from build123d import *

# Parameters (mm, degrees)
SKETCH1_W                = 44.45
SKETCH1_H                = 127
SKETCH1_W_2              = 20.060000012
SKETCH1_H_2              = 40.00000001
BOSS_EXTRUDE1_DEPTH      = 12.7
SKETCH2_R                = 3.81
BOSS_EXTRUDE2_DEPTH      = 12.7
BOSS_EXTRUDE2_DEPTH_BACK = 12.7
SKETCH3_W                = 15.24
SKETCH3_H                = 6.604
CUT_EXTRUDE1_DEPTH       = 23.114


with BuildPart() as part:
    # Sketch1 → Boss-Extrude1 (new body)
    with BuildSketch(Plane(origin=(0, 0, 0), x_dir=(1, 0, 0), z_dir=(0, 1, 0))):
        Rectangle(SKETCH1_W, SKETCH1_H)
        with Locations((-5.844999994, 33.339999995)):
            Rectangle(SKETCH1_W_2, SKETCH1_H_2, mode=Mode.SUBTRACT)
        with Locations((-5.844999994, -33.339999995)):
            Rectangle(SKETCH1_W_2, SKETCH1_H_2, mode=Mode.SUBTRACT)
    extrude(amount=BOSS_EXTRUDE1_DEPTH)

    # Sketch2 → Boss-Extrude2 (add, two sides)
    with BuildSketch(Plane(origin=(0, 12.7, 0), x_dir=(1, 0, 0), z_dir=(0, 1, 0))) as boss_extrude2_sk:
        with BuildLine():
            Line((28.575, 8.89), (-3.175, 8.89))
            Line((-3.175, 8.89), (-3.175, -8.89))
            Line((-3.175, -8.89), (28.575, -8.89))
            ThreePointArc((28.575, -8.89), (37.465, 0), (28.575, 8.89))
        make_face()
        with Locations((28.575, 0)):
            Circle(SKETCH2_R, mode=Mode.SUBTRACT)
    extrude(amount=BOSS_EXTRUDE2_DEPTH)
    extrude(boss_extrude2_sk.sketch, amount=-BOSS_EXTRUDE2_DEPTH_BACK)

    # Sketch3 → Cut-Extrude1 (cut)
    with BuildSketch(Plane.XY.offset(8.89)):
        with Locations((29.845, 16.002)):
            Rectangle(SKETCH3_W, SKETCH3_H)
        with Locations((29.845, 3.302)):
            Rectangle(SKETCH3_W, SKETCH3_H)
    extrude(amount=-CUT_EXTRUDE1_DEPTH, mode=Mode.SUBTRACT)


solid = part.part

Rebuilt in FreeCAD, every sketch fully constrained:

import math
import FreeCAD as App
import Part
import Sketcher
from FreeCAD import Vector
Q = App.Units.Quantity

doc = App.newDocument("Part")
params = doc.addObject("Spreadsheet::Sheet", "Params")
for row, (alias, value) in enumerate([
    ("sketch1_height", "5 in"),
    ("sketch1_width", "1.75 in"),
    ("pad1_length", "0.5 in"),
    ("sketch2_diameter", "0.3 in"),
    ("sketch2_radius", "0.35 in"),
    ("sketch2_width", "1.25 in"),
    ("pad2_length", "0.5 in"),
    ("pad2_length2", "0.5 in"),
    ("sketch3_width", "0.6 in"),
    ("sketch3_height", "0.26 in"),
    ("pocket1_length", "0.91 in"),
], start=1):
    params.set(f"A{row}", alias)
    params.set(f"B{row}", "=" + value)
    params.setAlias(f"B{row}", alias)

body = doc.addObject("PartDesign::Body", "Body")

# Sketch on XZ plane
sketch1 = doc.addObject("Sketcher::SketchObject", "Sketch")
body.addObject(sketch1)
sketch1.AttachmentSupport = (doc.XZ_Plane, [""])
sketch1.MapMode = "FlatFace"
sketch1.addGeometry([
    Part.LineSegment(Vector(-22.225, -63.5, 0), Vector(-22.225, 63.5, 0)),  # 0
    Part.LineSegment(Vector(-22.225, 63.5, 0), Vector(22.225, 63.5, 0)),  # 1
    Part.LineSegment(Vector(22.225, 63.5, 0), Vector(22.225, -63.5, 0)),  # 2
    Part.LineSegment(Vector(22.225, -63.5, 0), Vector(-22.225, -63.5, 0)),  # 3
    Part.LineSegment(Vector(4.185, 53.34, 0), Vector(-15.875, 53.34, 0)),  # 4
    Part.LineSegment(Vector(-15.875, 53.34, 0), Vector(-15.875, 13.34, 0)),  # 5
    Part.LineSegment(Vector(-15.875, 13.34, 0), Vector(4.185, 13.34, 0)),  # 6
    Part.LineSegment(Vector(4.185, 13.34, 0), Vector(4.185, 53.34, 0)),  # 7
    Part.LineSegment(Vector(4.185, -13.34, 0), Vector(-15.875, -13.34, 0)),  # 8
    Part.LineSegment(Vector(-15.875, -13.34, 0), Vector(-15.875, -53.34, 0)),  # 9
    Part.LineSegment(Vector(-15.875, -53.34, 0), Vector(4.185, -53.34, 0)),  # 10
    Part.LineSegment(Vector(4.185, -53.34, 0), Vector(4.185, -13.34, 0)),  # 11
], False)
sketch1.addConstraint([
    Sketcher.Constraint("Coincident", 0, 2, 1, 1),
    Sketcher.Constraint("Coincident", 1, 2, 2, 1),
    Sketcher.Constraint("Coincident", 2, 2, 3, 1),
    Sketcher.Constraint("Coincident", 3, 2, 0, 1),
    Sketcher.Constraint("Coincident", 4, 2, 5, 1),
    Sketcher.Constraint("Coincident", 5, 2, 6, 1),
    Sketcher.Constraint("Coincident", 6, 2, 7, 1),
    Sketcher.Constraint("Coincident", 7, 2, 4, 1),
    Sketcher.Constraint("Coincident", 8, 2, 9, 1),
    Sketcher.Constraint("Coincident", 9, 2, 10, 1),
    Sketcher.Constraint("Coincident", 10, 2, 11, 1),
    Sketcher.Constraint("Coincident", 11, 2, 8, 1),
    Sketcher.Constraint("Vertical", 0),
    Sketcher.Constraint("Horizontal", 1),
    Sketcher.Constraint("Vertical", 2),
    Sketcher.Constraint("Horizontal", 3),
    Sketcher.Constraint("Horizontal", 4),
    Sketcher.Constraint("Vertical", 5),
    Sketcher.Constraint("Horizontal", 6),
    Sketcher.Constraint("Vertical", 7),
    Sketcher.Constraint("Horizontal", 8),
    Sketcher.Constraint("Vertical", 9),
    Sketcher.Constraint("Horizontal", 10),
    Sketcher.Constraint("Vertical", 11),
    Sketcher.Constraint("Symmetric", 0, 2, 2, 2, -1, 1),
    Sketcher.Constraint("Symmetric", 5, 2, 8, 2, -1),
    Sketcher.Constraint("Symmetric", 7, 2, 10, 2, -1),
    Sketcher.Constraint("DistanceY", 0, 1, 0, 2, Q("5 in")),
    Sketcher.Constraint("DistanceX", 1, 1, 1, 2, Q("1.75 in")),
    Sketcher.Constraint("DistanceY", -1, 1, 4, 2, Q("2.1 in")),
    Sketcher.Constraint("DistanceX", 4, 2, 1, 2, Q("1.5 in")),
    Sketcher.Constraint("DistanceX", 4, 2, 4, 1, 20.06),
    Sketcher.Constraint("DistanceY", 5, 2, 5, 1, 40.0),
])
sketch1.setExpression("Constraints[27]", "Params.sketch1_height")
sketch1.setExpression("Constraints[28]", "Params.sketch1_width")
pad1 = doc.addObject("PartDesign::Pad", "Pad")
body.addObject(pad1)
pad1.Profile = sketch1
pad1.setExpression("Length", "Params.pad1_length")
pad1.Reversed = True

# Sketch on XZ plane
sketch2 = doc.addObject("Sketcher::SketchObject", "Sketch001")
body.addObject(sketch2)
sketch2.AttachmentSupport = (doc.XZ_Plane, [""])
sketch2.MapMode = "FlatFace"
sketch2.AttachmentOffset = App.Placement(Vector(0, 0, -0.5 * 25.4), App.Rotation())
sketch2.addGeometry([
    Part.LineSegment(Vector(28.575, -8.89, 0), Vector(-3.175, -8.89, 0)),  # 0
    Part.LineSegment(Vector(-3.175, -8.89, 0), Vector(-3.175, 8.89, 0)),  # 1
    Part.LineSegment(Vector(-3.175, 8.89, 0), Vector(28.575, 8.89, 0)),  # 2
    Part.ArcOfCircle(Part.Circle(Vector(28.575, 0, 0), Vector(0, 0, 1), 8.89), math.radians(-90), math.radians(90)),  # 3
    Part.Circle(Vector(28.575, 0, 0), Vector(0, 0, 1), 3.81),  # 4
], False)
sketch2.addConstraint([
    Sketcher.Constraint("Coincident", 0, 2, 1, 1),
    Sketcher.Constraint("Coincident", 1, 2, 2, 1),
    Sketcher.Constraint("Tangent", 2, 2, 3, 2),
    Sketcher.Constraint("Tangent", 3, 1, 0, 1),
    Sketcher.Constraint("Horizontal", 0),
    Sketcher.Constraint("Vertical", 1),
    Sketcher.Constraint("Horizontal", 2),
    Sketcher.Constraint("Coincident", 4, 3, 3, 3),
    Sketcher.Constraint("PointOnObject", 3, 3, -1),
    Sketcher.Constraint("Diameter", 4, Q("0.3 in")),
    Sketcher.Constraint("Radius", 3, Q("0.35 in")),
    Sketcher.Constraint("DistanceX", 0, 2, 0, 1, Q("1.25 in")),
    Sketcher.Constraint("DistanceX", -1, 1, 3, 3, Q("1.125 in")),
])
sketch2.setExpression("Constraints[9]", "Params.sketch2_diameter")
sketch2.setExpression("Constraints[10]", "Params.sketch2_radius")
sketch2.setExpression("Constraints[11]", "Params.sketch2_width")
pad2 = doc.addObject("PartDesign::Pad", "Pad001")
body.addObject(pad2)
pad2.Profile = sketch2
pad2.Type = "TwoLengths"
pad2.setExpression("Length", "Params.pad2_length")
pad2.setExpression("Length2", "Params.pad2_length2")
pad2.Reversed = True

# Sketch on XY plane
sketch3 = doc.addObject("Sketcher::SketchObject", "Sketch002")
body.addObject(sketch3)
sketch3.AttachmentSupport = (doc.XY_Plane, [""])
sketch3.MapMode = "FlatFace"
sketch3.AttachmentOffset = App.Placement(Vector(0, 0, 0.35 * 25.4), App.Rotation())
sketch3.addGeometry([
    Part.LineSegment(Vector(22.225, 19.304, 0), Vector(22.225, 12.7, 0)),  # 0
    Part.LineSegment(Vector(22.225, 12.7, 0), Vector(37.465, 12.7, 0)),  # 1
    Part.LineSegment(Vector(37.465, 12.7, 0), Vector(37.465, 19.304, 0)),  # 2
    Part.LineSegment(Vector(37.465, 19.304, 0), Vector(22.225, 19.304, 0)),  # 3
    Part.LineSegment(Vector(22.225, 6.604, 0), Vector(22.225, 0, 0)),  # 4
    Part.LineSegment(Vector(22.225, 0, 0), Vector(37.465, 0, 0)),  # 5
    Part.LineSegment(Vector(37.465, 0, 0), Vector(37.465, 6.604, 0)),  # 6
    Part.LineSegment(Vector(37.465, 6.604, 0), Vector(22.225, 6.604, 0)),  # 7
], False)
sketch3.addConstraint([
    Sketcher.Constraint("Coincident", 0, 2, 1, 1),
    Sketcher.Constraint("Coincident", 1, 2, 2, 1),
    Sketcher.Constraint("Coincident", 2, 2, 3, 1),
    Sketcher.Constraint("Coincident", 3, 2, 0, 1),
    Sketcher.Constraint("Coincident", 4, 2, 5, 1),
    Sketcher.Constraint("Coincident", 5, 2, 6, 1),
    Sketcher.Constraint("Coincident", 6, 2, 7, 1),
    Sketcher.Constraint("Coincident", 7, 2, 4, 1),
    Sketcher.Constraint("Vertical", 0),
    Sketcher.Constraint("Horizontal", 1),
    Sketcher.Constraint("Vertical", 2),
    Sketcher.Constraint("Horizontal", 3),
    Sketcher.Constraint("Vertical", 4),
    Sketcher.Constraint("Horizontal", 5),
    Sketcher.Constraint("Vertical", 6),
    Sketcher.Constraint("Horizontal", 7),
    Sketcher.Constraint("PointOnObject", 4, 2, -1),
    Sketcher.Constraint("Vertical", 3, 2, 4, 2),
    Sketcher.Constraint("Vertical", 2, 2, 5, 2),
    Sketcher.Constraint("Equal", 2, 4),
    Sketcher.Constraint("DistanceX", 1, 1, 1, 2, Q("0.6 in")),
    Sketcher.Constraint("DistanceY", 0, 2, 0, 1, Q("0.26 in")),
    Sketcher.Constraint("DistanceY", -1, 1, 0, 2, Q("0.5 in")),
    Sketcher.Constraint("DistanceX", -1, 1, 0, 2, Q("0.875 in")),
])
sketch3.setExpression("Constraints[20]", "Params.sketch3_width")
sketch3.setExpression("Constraints[21]", "Params.sketch3_height")
pocket1 = doc.addObject("PartDesign::Pocket", "Pocket")
body.addObject(pocket1)
pocket1.Profile = sketch3
pocket1.setExpression("Length", "Params.pocket1_length")

doc.recompute()
